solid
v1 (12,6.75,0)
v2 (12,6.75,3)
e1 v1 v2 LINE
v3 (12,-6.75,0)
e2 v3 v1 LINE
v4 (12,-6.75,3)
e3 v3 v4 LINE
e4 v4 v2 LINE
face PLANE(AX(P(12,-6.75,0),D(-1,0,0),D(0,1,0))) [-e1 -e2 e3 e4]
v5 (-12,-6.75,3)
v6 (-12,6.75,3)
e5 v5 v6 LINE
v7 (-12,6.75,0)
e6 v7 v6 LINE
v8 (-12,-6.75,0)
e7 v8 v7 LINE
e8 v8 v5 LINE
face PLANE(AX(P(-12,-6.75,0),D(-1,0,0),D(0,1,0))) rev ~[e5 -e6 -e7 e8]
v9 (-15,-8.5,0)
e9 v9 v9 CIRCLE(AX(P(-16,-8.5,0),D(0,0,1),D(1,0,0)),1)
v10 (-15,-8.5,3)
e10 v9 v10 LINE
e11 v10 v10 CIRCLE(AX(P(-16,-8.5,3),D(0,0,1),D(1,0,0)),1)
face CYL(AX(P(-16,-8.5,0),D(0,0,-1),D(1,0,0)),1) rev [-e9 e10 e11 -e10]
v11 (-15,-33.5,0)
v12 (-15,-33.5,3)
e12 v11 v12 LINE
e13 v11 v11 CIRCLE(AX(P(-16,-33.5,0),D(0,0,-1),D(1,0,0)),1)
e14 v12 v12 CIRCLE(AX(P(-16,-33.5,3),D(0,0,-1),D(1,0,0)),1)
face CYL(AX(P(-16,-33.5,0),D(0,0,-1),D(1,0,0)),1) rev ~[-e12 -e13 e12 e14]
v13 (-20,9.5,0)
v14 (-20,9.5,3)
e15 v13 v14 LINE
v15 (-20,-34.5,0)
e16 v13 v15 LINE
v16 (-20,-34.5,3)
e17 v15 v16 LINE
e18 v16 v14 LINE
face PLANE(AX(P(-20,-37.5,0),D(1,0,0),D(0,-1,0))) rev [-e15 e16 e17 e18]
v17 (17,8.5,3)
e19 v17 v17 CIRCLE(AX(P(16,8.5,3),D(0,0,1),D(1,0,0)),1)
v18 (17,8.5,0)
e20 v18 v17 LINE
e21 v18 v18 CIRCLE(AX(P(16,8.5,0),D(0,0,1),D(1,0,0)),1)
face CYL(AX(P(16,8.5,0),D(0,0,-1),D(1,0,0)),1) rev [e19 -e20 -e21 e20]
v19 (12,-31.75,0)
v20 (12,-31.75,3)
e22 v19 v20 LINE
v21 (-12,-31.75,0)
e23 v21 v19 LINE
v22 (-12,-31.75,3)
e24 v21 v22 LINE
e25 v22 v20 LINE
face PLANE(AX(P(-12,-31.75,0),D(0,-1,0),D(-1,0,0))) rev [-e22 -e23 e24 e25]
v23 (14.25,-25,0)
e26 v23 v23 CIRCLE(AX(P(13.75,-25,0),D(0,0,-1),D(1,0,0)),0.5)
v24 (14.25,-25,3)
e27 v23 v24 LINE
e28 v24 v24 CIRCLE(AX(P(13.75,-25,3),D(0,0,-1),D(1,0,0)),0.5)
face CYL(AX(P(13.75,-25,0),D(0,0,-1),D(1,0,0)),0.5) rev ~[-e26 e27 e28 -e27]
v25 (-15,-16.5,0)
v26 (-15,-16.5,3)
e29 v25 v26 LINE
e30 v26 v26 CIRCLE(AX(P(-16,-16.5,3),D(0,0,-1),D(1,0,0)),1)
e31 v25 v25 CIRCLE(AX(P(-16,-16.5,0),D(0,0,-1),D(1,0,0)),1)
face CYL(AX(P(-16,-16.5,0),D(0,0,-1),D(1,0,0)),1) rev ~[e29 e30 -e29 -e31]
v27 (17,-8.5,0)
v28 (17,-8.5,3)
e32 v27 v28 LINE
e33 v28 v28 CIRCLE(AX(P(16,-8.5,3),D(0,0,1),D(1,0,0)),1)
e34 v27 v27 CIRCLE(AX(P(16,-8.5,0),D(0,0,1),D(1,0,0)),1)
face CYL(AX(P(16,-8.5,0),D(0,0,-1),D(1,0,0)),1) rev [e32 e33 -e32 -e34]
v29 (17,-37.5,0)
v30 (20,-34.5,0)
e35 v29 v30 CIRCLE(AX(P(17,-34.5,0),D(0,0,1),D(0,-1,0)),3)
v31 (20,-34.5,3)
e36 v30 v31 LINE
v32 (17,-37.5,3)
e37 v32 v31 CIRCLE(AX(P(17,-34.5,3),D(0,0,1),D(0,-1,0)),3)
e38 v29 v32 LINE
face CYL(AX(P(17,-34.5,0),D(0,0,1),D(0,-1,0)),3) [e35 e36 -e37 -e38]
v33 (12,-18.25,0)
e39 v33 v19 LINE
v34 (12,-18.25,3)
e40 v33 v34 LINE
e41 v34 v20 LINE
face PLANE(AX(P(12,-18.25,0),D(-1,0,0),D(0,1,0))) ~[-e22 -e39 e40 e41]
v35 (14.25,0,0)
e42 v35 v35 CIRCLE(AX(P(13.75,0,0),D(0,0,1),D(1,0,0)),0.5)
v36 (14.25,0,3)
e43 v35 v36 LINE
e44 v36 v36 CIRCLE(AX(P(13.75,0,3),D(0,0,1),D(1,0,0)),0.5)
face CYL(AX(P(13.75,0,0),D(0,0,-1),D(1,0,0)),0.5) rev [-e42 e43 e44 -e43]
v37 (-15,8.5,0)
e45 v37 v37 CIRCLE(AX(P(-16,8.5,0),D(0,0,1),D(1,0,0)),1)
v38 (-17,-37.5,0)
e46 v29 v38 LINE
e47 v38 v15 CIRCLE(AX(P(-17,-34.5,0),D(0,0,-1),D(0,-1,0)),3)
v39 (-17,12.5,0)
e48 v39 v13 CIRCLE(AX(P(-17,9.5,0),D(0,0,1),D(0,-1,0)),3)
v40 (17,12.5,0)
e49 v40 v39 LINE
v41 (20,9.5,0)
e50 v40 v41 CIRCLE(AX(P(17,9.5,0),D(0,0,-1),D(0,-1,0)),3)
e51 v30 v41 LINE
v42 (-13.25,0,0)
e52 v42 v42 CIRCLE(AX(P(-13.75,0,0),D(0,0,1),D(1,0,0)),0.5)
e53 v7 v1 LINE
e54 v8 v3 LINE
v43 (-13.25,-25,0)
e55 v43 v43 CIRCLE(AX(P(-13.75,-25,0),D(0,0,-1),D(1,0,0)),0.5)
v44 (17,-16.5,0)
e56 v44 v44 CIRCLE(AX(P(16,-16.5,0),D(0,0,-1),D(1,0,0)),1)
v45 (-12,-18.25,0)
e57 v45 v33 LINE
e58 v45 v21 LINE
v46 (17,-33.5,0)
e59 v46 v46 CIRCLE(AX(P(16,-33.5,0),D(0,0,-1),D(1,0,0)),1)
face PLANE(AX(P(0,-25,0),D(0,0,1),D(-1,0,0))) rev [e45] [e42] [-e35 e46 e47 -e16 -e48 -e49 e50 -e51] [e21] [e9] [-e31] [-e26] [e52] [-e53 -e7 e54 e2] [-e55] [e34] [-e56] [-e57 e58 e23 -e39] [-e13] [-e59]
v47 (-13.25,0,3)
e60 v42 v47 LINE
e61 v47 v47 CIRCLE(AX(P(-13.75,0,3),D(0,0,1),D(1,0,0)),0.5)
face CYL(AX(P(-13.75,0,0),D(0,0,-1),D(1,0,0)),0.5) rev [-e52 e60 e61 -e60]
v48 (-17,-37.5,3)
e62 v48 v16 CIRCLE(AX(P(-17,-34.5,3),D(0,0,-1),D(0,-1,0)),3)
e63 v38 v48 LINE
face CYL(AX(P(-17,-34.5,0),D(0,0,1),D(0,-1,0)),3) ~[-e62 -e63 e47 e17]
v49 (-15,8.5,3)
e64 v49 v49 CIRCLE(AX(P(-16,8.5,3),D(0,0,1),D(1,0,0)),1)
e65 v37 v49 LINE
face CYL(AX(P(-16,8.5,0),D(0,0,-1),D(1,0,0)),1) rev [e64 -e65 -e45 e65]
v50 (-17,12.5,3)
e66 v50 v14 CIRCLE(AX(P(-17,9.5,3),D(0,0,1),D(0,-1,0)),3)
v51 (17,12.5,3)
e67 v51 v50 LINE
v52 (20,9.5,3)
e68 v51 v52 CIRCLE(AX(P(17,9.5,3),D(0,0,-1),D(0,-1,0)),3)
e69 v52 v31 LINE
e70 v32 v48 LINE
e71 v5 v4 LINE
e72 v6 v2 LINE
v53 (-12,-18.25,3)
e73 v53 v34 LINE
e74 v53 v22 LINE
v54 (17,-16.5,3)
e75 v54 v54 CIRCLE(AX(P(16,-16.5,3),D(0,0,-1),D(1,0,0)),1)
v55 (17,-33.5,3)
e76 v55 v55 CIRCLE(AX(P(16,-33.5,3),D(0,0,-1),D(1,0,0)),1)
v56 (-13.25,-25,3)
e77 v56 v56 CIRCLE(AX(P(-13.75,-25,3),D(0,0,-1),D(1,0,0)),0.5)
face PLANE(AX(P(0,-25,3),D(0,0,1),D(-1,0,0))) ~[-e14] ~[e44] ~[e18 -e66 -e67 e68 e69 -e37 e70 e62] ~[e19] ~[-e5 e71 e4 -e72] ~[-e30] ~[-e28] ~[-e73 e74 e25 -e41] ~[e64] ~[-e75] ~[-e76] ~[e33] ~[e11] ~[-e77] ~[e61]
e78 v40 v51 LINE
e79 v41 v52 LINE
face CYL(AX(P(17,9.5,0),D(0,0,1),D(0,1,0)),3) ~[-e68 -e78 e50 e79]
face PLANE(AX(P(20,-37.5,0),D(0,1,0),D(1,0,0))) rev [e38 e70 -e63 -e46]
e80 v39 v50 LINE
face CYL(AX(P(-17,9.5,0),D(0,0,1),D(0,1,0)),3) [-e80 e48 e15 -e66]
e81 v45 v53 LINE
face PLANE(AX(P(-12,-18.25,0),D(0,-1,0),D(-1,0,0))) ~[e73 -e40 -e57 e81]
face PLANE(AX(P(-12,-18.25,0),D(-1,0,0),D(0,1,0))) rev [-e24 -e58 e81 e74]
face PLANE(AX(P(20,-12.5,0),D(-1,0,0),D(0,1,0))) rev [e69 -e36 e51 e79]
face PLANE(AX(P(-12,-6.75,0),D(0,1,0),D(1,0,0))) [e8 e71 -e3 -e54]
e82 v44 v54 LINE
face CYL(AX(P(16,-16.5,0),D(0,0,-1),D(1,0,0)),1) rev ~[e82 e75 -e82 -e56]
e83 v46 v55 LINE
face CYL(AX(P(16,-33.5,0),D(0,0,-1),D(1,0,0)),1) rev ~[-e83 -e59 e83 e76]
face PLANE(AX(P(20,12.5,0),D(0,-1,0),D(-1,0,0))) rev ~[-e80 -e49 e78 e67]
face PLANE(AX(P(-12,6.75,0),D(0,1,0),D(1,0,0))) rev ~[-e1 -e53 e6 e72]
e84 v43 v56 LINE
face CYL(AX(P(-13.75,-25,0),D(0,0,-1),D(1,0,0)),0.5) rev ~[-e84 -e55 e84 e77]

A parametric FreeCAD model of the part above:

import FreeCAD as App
import Part
import Sketcher
from FreeCAD import Vector
Q = App.Units.Quantity


def edges_at(feature, points):
    """Names of the edges that pass closest to the given points."""
    edges = feature.Shape.Edges
    near = lambda p: min(range(len(edges)), key=lambda i: edges[i].distToShape(Part.Vertex(*p))[0])
    return sorted({f"Edge{near(p) + 1}" for p in points})


def add_polygon(sketch, points):
    """Adds a closed chain of lines whose ends are joined by coincident constraints."""
    first, n = sketch.GeometryCount, len(points)
    for a, b in zip(points, points[1:] + points[:1]):
        sketch.addGeometry(Part.LineSegment(App.Vector(*a, 0), App.Vector(*b, 0)), False)
    for i in range(n):
        sketch.addConstraint(Sketcher.Constraint("Coincident", first + i, 2, first + (i + 1) % n, 1))

doc = App.newDocument("Part")
body = doc.addObject("PartDesign::Body", "Body")

sketch1 = body.newObject("Sketcher::SketchObject", "Sketch")
sketch1.AttachmentSupport = (doc.getObject("XY_Plane"), [""])
sketch1.MapMode = "FlatFace"
add_polygon(sketch1, [(20, 12.5), (-20, 12.5), (-20, -12.5), (20, -12.5)])
sketch1.addGeometry(Part.Circle(Vector(-16, -8.5, 0), Vector(0, 0, 1), 1), False)
sketch1.addGeometry(Part.Circle(Vector(16, -8.5, 0), Vector(0, 0, 1), 1), False)
sketch1.addGeometry(Part.Circle(Vector(-13.75, 0, 0), Vector(0, 0, 1), 0.5), False)
sketch1.addGeometry(Part.Circle(Vector(-16, 8.5, 0), Vector(0, 0, 1), 1), False)
add_polygon(sketch1, [(12, -6.75), (-12, -6.75), (-12, 6.75), (12, 6.75)])
sketch1.addGeometry(Part.Circle(Vector(13.75, 0, 0), Vector(0, 0, 1), 0.5), False)
sketch1.addGeometry(Part.Circle(Vector(16, 8.5, 0), Vector(0, 0, 1), 1), False)
sketch1.addConstraint(Sketcher.Constraint("Horizontal", 0))
sketch1.addConstraint(Sketcher.Constraint("Vertical", 1))
sketch1.addConstraint(Sketcher.Constraint("Horizontal", 2))
sketch1.addConstraint(Sketcher.Constraint("Vertical", 3))
sketch1.addConstraint(Sketcher.Constraint("Horizontal", 8))
sketch1.addConstraint(Sketcher.Constraint("Vertical", 9))
sketch1.addConstraint(Sketcher.Constraint("Horizontal", 10))
sketch1.addConstraint(Sketcher.Constraint("Vertical", 11))
sketch1.addConstraint(Sketcher.Constraint("Equal", 4, 5))
sketch1.addConstraint(Sketcher.Constraint("Equal", 5, 7))
sketch1.addConstraint(Sketcher.Constraint("Equal", 6, 12))
sketch1.addConstraint(Sketcher.Constraint("Equal", 7, 13))
sketch1.addConstraint(Sketcher.Constraint("Symmetric", 5, 3, 7, 3, -1, 1))
sketch1.addConstraint(Sketcher.Constraint("Symmetric", 6, 3, 12, 3, -1, 1))
sketch1.addConstraint(Sketcher.Constraint("Symmetric", 4, 3, 13, 3, -1, 1))
sketch1.addConstraint(Sketcher.Constraint("Symmetric", 0, 2, 2, 2, -1, 1))
sketch1.addConstraint(Sketcher.Constraint("Symmetric", 8, 2, 10, 2, -1, 1))
sketch1.addConstraint(Sketcher.Constraint("Symmetric", 4, 3, 5, 3, -2))
sketch1.addConstraint(Sketcher.Constraint("PointOnObject", 6, 3, -1))
sketch1.addConstraint(Sketcher.Constraint("Diameter", 4, Q("2 mm")))
sketch1.addConstraint(Sketcher.Constraint("Diameter", 6, Q("1 mm")))
sketch1.addConstraint(Sketcher.Constraint("DistanceX", 0, 2, 0, 1, Q("40 mm")))
sketch1.addConstraint(Sketcher.Constraint("DistanceX", 8, 2, 8, 1, Q("24 mm")))
sketch1.addConstraint(Sketcher.Constraint("DistanceY", 1, 2, 1, 1, Q("25 mm")))
sketch1.addConstraint(Sketcher.Constraint("DistanceY", 9, 1, 9, 2, Q("13.5 mm")))
sketch1.addConstraint(Sketcher.Constraint("DistanceX", 4, 3, -1, 1, Q("16 mm")))
sketch1.addConstraint(Sketcher.Constraint("DistanceY", 4, 3, 7, 3, Q("17 mm")))
sketch1.addConstraint(Sketcher.Constraint("DistanceX", 6, 3, 12, 3, Q("27.5 mm")))
pad1 = body.newObject("PartDesign::Pad", "Pad")
pad1.Profile = sketch1
pad1.Length = 3
body2 = doc.addObject("PartDesign::Body", "Body001")
doc.recompute()

body2.BaseFeature = body
doc.recompute()

mirroring = doc.addObject("Part::Mirroring", "Mirroring")
mirroring.Source = body
mirroring.Base = Vector(0, -12.5, 1.5)
mirroring.Normal = Vector(0, -1, 0)
body3 = doc.addObject("PartDesign::Body", "Body002")
body3.BaseFeature = mirroring
boolean = body2.newObject("PartDesign::Boolean", "Boolean")
boolean.Type = "Fuse"
boolean.addObjects([body3])
doc.recompute()

fillet = body2.newObject("PartDesign::Fillet", "Fillet")
fillet.Base = (boolean, edges_at(boolean, [
    (-20, -37.5, 1.5),
    (20, -37.5, 1.5),
    (20, 12.5, 1.5),
    (-20, 12.5, 1.5),
]))
fillet.Radius = 3
mirroring.Visibility = False

doc.recompute()
